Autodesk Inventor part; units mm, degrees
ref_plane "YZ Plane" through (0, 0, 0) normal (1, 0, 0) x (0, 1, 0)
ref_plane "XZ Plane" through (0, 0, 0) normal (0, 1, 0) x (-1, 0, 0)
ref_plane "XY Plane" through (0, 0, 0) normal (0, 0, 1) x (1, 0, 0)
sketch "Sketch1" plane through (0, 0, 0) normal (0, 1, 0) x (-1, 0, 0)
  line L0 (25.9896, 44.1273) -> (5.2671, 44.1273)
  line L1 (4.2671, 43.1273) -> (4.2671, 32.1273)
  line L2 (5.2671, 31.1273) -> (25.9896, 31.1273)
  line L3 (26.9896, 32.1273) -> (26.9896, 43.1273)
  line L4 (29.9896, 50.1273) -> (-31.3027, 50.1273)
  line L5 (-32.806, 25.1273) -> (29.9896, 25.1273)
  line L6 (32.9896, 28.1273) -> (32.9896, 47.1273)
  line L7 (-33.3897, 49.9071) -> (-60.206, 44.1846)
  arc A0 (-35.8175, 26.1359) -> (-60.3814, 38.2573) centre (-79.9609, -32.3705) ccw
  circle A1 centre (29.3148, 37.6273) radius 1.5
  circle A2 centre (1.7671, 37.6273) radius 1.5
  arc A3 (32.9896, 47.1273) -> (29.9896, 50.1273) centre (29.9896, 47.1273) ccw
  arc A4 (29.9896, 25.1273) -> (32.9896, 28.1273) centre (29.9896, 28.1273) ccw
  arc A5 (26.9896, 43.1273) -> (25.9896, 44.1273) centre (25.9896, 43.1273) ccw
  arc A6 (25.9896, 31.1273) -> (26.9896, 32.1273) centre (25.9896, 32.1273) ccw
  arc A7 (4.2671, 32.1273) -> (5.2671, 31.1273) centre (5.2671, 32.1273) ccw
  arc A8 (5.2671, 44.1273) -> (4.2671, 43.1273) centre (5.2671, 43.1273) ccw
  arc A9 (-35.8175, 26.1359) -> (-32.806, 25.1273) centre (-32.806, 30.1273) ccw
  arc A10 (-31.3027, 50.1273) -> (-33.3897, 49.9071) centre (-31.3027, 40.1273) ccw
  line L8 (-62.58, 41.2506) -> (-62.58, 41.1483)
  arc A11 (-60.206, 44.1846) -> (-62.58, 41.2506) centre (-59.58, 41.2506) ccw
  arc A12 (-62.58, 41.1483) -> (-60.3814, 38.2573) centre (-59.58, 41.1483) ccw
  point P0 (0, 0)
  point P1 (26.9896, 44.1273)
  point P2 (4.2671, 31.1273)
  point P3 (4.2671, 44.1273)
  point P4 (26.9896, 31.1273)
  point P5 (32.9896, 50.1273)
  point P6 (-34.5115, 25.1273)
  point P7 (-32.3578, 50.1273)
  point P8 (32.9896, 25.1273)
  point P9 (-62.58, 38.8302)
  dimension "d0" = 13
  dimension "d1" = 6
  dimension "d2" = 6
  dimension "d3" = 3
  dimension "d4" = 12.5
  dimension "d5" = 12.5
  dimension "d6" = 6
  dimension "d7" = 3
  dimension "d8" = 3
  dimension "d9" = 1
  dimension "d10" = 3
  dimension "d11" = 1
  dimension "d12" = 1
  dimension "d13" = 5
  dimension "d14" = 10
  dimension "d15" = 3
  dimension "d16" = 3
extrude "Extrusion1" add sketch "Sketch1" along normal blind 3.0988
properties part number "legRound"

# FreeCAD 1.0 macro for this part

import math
import FreeCAD as App
import Part
import Sketcher

V = App.Vector

doc = App.newDocument("Part")
body = doc.addObject("PartDesign::Body", "Body")

sketch1 = body.newObject("Sketcher::SketchObject", "Sketch")
sketch1.AttachmentSupport = (doc.getObject("XZ_Plane"), [""])
sketch1.MapMode = "FlatFace"
sketch1.addGeometry(Part.ArcOfCircle(Part.Circle(V(-29.99, 47.13, 0), V(0, 0, 1), 3), math.radians(90), math.radians(180)), False)
sketch1.addGeometry(Part.LineSegment(V(-29.99, 50.13, 0), V(31.3, 50.13, 0)), False)
sketch1.addGeometry(Part.ArcOfCircle(Part.Circle(V(31.3, 40.13, 0), V(0, 0, 1), 10), math.radians(77.95), math.radians(90)), False)
sketch1.addGeometry(Part.LineSegment(V(33.39, 49.91, 0), V(60.21, 44.18, 0)), False)
sketch1.addGeometry(Part.ArcOfCircle(Part.Circle(V(59.58, 41.25, 0), V(0, 0, 1), 3), math.radians(0), math.radians(78)), False)
sketch1.addGeometry(Part.LineSegment(V(62.58, 41.25, 0), V(62.58, 41.15, 0)), False)
sketch1.addGeometry(Part.ArcOfCircle(Part.Circle(V(59.58, 41.15, 0), V(0, 0, 1), 3), math.radians(-75), math.radians(0)), False)
sketch1.addGeometry(Part.ArcOfCircle(Part.Circle(V(79.96, -32.37, 0), V(0, 0, 1), 73.29), math.radians(105), math.radians(127)), False)
sketch1.addGeometry(Part.ArcOfCircle(Part.Circle(V(32.81, 30.13, 0), V(0, 0, 1), 5), math.radians(-90), math.radians(-53)), False)
sketch1.addGeometry(Part.LineSegment(V(32.81, 25.13, 0), V(-29.99, 25.13, 0)), False)
sketch1.addGeometry(Part.ArcOfCircle(Part.Circle(V(-29.99, 28.13, 0), V(0, 0, 1), 3), math.radians(180), math.radians(270)), False)
sketch1.addGeometry(Part.LineSegment(V(-32.99, 28.13, 0), V(-32.99, 47.13, 0)), False)
sketch1.addGeometry(Part.Circle(V(-1.77, 37.63, 0), V(0, 0, 1), 1.5), False)
sketch1.addGeometry(Part.LineSegment(V(-5.27, 44.13, 0), V(-25.99, 44.13, 0)), False)
sketch1.addGeometry(Part.ArcOfCircle(Part.Circle(V(-25.99, 43.13, 0), V(0, 0, 1), 1), math.radians(90), math.radians(180)), False)
sketch1.addGeometry(Part.LineSegment(V(-26.99, 43.13, 0), V(-26.99, 32.13, 0)), False)
sketch1.addGeometry(Part.ArcOfCircle(Part.Circle(V(-25.99, 32.13, 0), V(0, 0, 1), 1), math.radians(180), math.radians(270)), False)
sketch1.addGeometry(Part.LineSegment(V(-25.99, 31.13, 0), V(-5.27, 31.13, 0)), False)
sketch1.addGeometry(Part.ArcOfCircle(Part.Circle(V(-5.27, 32.13, 0), V(0, 0, 1), 1), math.radians(-90), math.radians(0)), False)
sketch1.addGeometry(Part.LineSegment(V(-4.27, 32.13, 0), V(-4.27, 43.13, 0)), False)
sketch1.addGeometry(Part.ArcOfCircle(Part.Circle(V(-5.27, 43.13, 0), V(0, 0, 1), 1), math.radians(0), math.radians(90)), False)
sketch1.addGeometry(Part.Circle(V(-29.31, 37.63, 0), V(0, 0, 1), 1.5), False)
sketch1.addConstraint(Sketcher.Constraint("Tangent", 0, 1, 1, 1))
sketch1.addConstraint(Sketcher.Constraint("Tangent", 1, 2, 2, 2))
sketch1.addConstraint(Sketcher.Constraint("Tangent", 2, 1, 3, 1))
sketch1.addConstraint(Sketcher.Constraint("Tangent", 3, 2, 4, 2))
sketch1.addConstraint(Sketcher.Constraint("Tangent", 4, 1, 5, 1))
sketch1.addConstraint(Sketcher.Constraint("Tangent", 5, 2, 6, 2))
sketch1.addConstraint(Sketcher.Constraint("Tangent", 6, 1, 7, 1))
sketch1.addConstraint(Sketcher.Constraint("Tangent", 7, 2, 8, 2))
sketch1.addConstraint(Sketcher.Constraint("Tangent", 8, 1, 9, 1))
sketch1.addConstraint(Sketcher.Constraint("Tangent", 9, 2, 10, 2))
sketch1.addConstraint(Sketcher.Constraint("Tangent", 10, 1, 11, 1))
sketch1.addConstraint(Sketcher.Constraint("Tangent", 11, 2, 0, 2))
sketch1.addConstraint(Sketcher.Constraint("Tangent", 13, 2, 14, 1))
sketch1.addConstraint(Sketcher.Constraint("Tangent", 14, 2, 15, 1))
sketch1.addConstraint(Sketcher.Constraint("Tangent", 15, 2, 16, 1))
sketch1.addConstraint(Sketcher.Constraint("Tangent", 16, 2, 17, 1))
sketch1.addConstraint(Sketcher.Constraint("Tangent", 17, 2, 18, 1))
sketch1.addConstraint(Sketcher.Constraint("Tangent", 18, 2, 19, 1))
sketch1.addConstraint(Sketcher.Constraint("Tangent", 19, 2, 20, 1))
sketch1.addConstraint(Sketcher.Constraint("Tangent", 20, 2, 13, 1))
sketch1.addConstraint(Sketcher.Constraint("Horizontal", 1))
sketch1.addConstraint(Sketcher.Constraint("Vertical", 5))
sketch1.addConstraint(Sketcher.Constraint("Horizontal", 9))
sketch1.addConstraint(Sketcher.Constraint("Vertical", 11))
sketch1.addConstraint(Sketcher.Constraint("Horizontal", 13))
sketch1.addConstraint(Sketcher.Constraint("Vertical", 15))
sketch1.addConstraint(Sketcher.Constraint("Horizontal", 17))
sketch1.addConstraint(Sketcher.Constraint("Vertical", 19))
sketch1.addConstraint(Sketcher.Constraint("Equal", 0, 4))
sketch1.addConstraint(Sketcher.Constraint("Equal", 4, 6))
sketch1.addConstraint(Sketcher.Constraint("Equal", 6, 10))
sketch1.addConstraint(Sketcher.Constraint("Equal", 14, 16))
sketch1.addConstraint(Sketcher.Constraint("Equal", 16, 18))
sketch1.addConstraint(Sketcher.Constraint("Equal", 18, 20))
sketch1.addConstraint(Sketcher.Constraint("Equal", 12, 21))
sketch1.addConstraint(Sketcher.Constraint("Horizontal", 12, 3, 21, 3))
sketch1.addConstraint(Sketcher.Constraint("Diameter", 12, 3.0))
sketch1.addConstraint(Sketcher.Constraint("Radius", 0, 3.0))
sketch1.addConstraint(Sketcher.Constraint("Radius", 2, 10.0))
sketch1.addConstraint(Sketcher.Constraint("Radius", 8, 5.0))
sketch1.addConstraint(Sketcher.Constraint("Radius", 14, 1.0))
sketch1.addConstraint(Sketcher.Constraint("DistanceY", 8, 3, 2, 3, 10.0))
sketch1.addConstraint(Sketcher.Constraint("DistanceY", 2, 3, 14, 3, 3.0))
sketch1.addConstraint(Sketcher.Constraint("DistanceX", 0, 3, 14, 2, 3.0))
sketch1.addConstraint(Sketcher.Constraint("DistanceY", 10, 3, 16, 2, 3.0))
sketch1.addConstraint(Sketcher.Constraint("DistanceY", 21, 3, 0, 1, 12.5))
sketch1.addConstraint(Sketcher.Constraint("Radius", 7, 73.2915))
sketch1.addConstraint(Sketcher.Constraint("DistanceX", 18, 3, 12, 3, 3.5))
sketch1.addConstraint(Sketcher.Constraint("Distance", 3, 27.42))
sketch1.addConstraint(Sketcher.Constraint("DistanceX", -1, 1, 4, 3, 59.58))
sketch1.addConstraint(Sketcher.Constraint("DistanceX", 1, 1, 1, 2, 61.2923))
sketch1.addConstraint(Sketcher.Constraint("DistanceX", 9, 2, 9, 1, 62.7956))
sketch1.addConstraint(Sketcher.Constraint("DistanceX", 13, 2, 13, 1, 20.7225))
sketch1.addConstraint(Sketcher.Constraint("DistanceY", 5, 2, 5, 1, 0.1023))
sketch1.addConstraint(Sketcher.Constraint("DistanceX", -1, 1, 7, 3, 79.961))
sketch1.addConstraint(Sketcher.Constraint("DistanceY", -1, 1, 2, 1, 49.907))
sketch1.addConstraint(Sketcher.Constraint("DistanceX", 21, 3, -1, 1, 29.3148))
pad1 = body.newObject("PartDesign::Pad", "Pad")
pad1.Profile = sketch1
pad1.Length = 3.0988
pad1.Reversed = True

doc.recompute()
